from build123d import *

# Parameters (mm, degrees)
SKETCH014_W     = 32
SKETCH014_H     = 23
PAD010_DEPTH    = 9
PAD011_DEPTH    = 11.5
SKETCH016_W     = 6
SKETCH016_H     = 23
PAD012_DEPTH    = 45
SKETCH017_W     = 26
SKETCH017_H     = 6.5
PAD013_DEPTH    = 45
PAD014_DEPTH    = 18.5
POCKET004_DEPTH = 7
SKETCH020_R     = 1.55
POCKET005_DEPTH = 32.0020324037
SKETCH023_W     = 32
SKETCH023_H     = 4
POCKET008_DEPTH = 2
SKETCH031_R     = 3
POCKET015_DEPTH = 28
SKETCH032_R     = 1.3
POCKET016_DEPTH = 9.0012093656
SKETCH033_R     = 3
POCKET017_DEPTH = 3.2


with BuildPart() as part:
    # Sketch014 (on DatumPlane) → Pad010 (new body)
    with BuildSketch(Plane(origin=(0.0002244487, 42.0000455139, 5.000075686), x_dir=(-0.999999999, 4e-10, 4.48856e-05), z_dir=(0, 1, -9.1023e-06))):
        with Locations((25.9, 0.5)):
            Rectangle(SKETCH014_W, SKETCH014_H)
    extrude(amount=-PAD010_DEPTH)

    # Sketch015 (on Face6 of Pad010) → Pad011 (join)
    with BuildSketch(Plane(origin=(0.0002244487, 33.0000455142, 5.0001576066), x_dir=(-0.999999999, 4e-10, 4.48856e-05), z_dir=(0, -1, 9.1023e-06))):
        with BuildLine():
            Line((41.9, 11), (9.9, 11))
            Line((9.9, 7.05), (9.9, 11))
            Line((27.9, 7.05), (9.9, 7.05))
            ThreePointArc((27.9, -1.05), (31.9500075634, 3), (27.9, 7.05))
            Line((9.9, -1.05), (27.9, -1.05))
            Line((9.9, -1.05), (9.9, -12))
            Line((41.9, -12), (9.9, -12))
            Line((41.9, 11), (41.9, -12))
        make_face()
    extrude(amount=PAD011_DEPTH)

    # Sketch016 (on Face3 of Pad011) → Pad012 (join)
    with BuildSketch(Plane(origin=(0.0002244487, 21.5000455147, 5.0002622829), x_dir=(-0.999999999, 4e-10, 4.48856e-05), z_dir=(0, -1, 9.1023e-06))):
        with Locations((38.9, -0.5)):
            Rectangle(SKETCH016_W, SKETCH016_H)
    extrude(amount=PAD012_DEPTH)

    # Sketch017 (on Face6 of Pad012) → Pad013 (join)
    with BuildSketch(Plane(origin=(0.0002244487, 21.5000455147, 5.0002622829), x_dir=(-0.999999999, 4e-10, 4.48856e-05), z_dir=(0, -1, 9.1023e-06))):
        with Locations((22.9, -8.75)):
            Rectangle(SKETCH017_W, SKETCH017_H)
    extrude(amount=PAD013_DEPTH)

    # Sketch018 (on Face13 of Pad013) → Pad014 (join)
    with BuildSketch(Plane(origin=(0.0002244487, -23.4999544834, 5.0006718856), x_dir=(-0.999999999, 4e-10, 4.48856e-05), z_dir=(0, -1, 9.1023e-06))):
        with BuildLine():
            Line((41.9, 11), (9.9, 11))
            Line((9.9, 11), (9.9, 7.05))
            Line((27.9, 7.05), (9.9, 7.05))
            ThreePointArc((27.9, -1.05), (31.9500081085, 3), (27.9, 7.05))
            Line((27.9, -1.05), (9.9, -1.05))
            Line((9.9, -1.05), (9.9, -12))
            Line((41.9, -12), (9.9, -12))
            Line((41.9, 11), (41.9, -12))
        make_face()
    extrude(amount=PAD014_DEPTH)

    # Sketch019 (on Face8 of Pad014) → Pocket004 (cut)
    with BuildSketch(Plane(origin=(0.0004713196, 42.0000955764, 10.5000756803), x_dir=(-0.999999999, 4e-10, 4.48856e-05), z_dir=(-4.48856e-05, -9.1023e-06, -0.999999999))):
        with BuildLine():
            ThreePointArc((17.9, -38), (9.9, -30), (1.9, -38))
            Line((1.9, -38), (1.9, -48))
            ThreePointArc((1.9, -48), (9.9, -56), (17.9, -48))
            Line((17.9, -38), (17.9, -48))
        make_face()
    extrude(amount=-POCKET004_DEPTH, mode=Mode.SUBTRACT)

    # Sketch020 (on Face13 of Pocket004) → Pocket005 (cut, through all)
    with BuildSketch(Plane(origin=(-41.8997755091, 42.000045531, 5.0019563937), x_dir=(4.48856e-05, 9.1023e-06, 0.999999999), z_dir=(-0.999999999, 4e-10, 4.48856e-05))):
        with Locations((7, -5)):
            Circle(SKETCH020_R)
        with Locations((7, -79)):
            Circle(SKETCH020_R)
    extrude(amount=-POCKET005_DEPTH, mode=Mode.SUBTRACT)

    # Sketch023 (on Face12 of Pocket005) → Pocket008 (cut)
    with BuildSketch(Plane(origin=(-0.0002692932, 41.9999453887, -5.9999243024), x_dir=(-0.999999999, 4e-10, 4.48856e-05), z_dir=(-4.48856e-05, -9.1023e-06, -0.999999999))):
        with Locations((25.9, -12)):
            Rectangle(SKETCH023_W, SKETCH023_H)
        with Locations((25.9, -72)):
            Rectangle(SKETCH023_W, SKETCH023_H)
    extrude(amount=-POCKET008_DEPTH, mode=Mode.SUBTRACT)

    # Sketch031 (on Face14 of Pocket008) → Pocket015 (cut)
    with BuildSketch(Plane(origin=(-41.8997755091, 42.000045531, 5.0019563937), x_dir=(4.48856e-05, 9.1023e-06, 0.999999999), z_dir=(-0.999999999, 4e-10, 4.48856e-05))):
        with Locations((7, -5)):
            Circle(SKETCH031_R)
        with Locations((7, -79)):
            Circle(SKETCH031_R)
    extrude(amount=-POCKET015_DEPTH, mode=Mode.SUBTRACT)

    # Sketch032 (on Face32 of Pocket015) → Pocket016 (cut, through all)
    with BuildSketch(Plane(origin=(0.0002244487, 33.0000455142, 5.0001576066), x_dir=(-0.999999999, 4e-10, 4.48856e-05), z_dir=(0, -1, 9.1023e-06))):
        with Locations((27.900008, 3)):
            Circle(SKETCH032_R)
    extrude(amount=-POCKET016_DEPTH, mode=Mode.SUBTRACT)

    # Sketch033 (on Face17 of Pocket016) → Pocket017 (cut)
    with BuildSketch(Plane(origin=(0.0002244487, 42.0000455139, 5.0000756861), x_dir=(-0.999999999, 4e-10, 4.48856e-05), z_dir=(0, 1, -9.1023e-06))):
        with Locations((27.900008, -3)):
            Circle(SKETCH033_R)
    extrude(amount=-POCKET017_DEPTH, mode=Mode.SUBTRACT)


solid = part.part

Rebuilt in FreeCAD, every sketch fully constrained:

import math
import FreeCAD as App
import Part
import Sketcher

doc = App.newDocument("Part")
body = doc.addObject("PartDesign::Body", "Body")

# Sketch on XZ plane
sketch1 = doc.addObject("Sketcher::SketchObject", "Sketch")
body.addObject(sketch1)
sketch1.AttachmentSupport = (doc.XZ_Plane, [""])
sketch1.MapMode = "FlatFace"
sketch1.AttachmentOffset = App.Placement(App.Vector(0, 0, -42.000046), App.Rotation())
sketch1.addGeometry([
    Part.LineSegment(App.Vector(-10, 17, 0), App.Vector(-10, -6, 0)),
    Part.LineSegment(App.Vector(-10, -6, 0), App.Vector(-42, -6, 0)),
    Part.LineSegment(App.Vector(-42, -6, 0), App.Vector(-42, 17, 0)),
    Part.LineSegment(App.Vector(-42, 17, 0), App.Vector(-10, 17, 0)),
], False)
sketch1.addConstraint([
    Sketcher.Constraint("Coincident", 0, 2, 1, 1),
    Sketcher.Constraint("Coincident", 1, 2, 2, 1),
    Sketcher.Constraint("Coincident", 2, 2, 3, 1),
    Sketcher.Constraint("Coincident", 3, 2, 0, 1),
    Sketcher.Constraint("Perpendicular", 0, 1),
    Sketcher.Constraint("Perpendicular", 1, 2),
    Sketcher.Constraint("Perpendicular", 2, 3),
    Sketcher.Constraint("Distance", 0, 23.0),
    Sketcher.Constraint("Distance", 1, 32.0),
    Sketcher.Constraint("DistanceX", 0, 2, -1, 1, 9.900269),
    Sketcher.Constraint("DistanceY", 0, 2, -1, 1, 5.99948),
    Sketcher.Constraint("DistanceY", 1, 2, -1, 1, 5.998044),
])
pad1 = doc.addObject("PartDesign::Pad", "Pad")
body.addObject(pad1)
pad1.Profile = sketch1
pad1.Length = 9

# Sketch on XZ plane
sketch2 = doc.addObject("Sketcher::SketchObject", "Sketch001")
body.addObject(sketch2)
sketch2.AttachmentSupport = (doc.XZ_Plane, [""])
sketch2.MapMode = "FlatFace"
sketch2.AttachmentOffset = App.Placement(App.Vector(0, 0, -33.000046), App.Rotation())
sketch2.addGeometry([
    Part.LineSegment(App.Vector(-41.9, -6, 0), App.Vector(-9.9, -6, 0)),  # 0
    Part.LineSegment(App.Vector(-9.9, -6, 0), App.Vector(-9.9, -2, 0)),  # 1
    Part.LineSegment(App.Vector(-9.9, -2, 0), App.Vector(-27.9, -2, 0)),  # 2
    Part.ArcOfCircle(Part.Circle(App.Vector(-27.9, 2, 0), App.Vector(0, 0, 1), 4), math.radians(90), math.radians(270)),  # 3
    Part.LineSegment(App.Vector(-27.9, 6.1, 0), App.Vector(-9.9, 6.1, 0)),  # 4
    Part.LineSegment(App.Vector(-9.9, 6.1, 0), App.Vector(-9.9, 17, 0)),  # 5
    Part.LineSegment(App.Vector(-9.9, 17, 0), App.Vector(-41.9, 17, 0)),  # 6
    Part.LineSegment(App.Vector(-41.9, 17, 0), App.Vector(-41.9, -6, 0)),  # 7
], False)
sketch2.addConstraint([
    Sketcher.Constraint("Coincident", 0, 2, 1, 1),
    Sketcher.Constraint("Coincident", 1, 2, 2, 1),
    Sketcher.Constraint("Tangent", 2, 2, 3, 2),
    Sketcher.Constraint("Tangent", 3, 1, 4, 1),
    Sketcher.Constraint("Coincident", 4, 2, 5, 1),
    Sketcher.Constraint("Coincident", 5, 2, 6, 1),
    Sketcher.Constraint("Coincident", 6, 2, 7, 1),
    Sketcher.Constraint("Coincident", 7, 2, 0, 1),
    Sketcher.Constraint("Perpendicular", 0, 1),
    Sketcher.Constraint("Perpendicular", 1, 2),
    Sketcher.Constraint("Parallel", 2, 4),
    Sketcher.Constraint("Perpendicular", 4, 5),
    Sketcher.Constraint("Perpendicular", 5, 6),
    Sketcher.Constraint("Perpendicular", 6, 7),
    Sketcher.Constraint("Equal", 2, 4),
    Sketcher.Constraint("Radius", 3, 4.05),
    Sketcher.Constraint("Distance", 0, 32.0),
    Sketcher.Constraint("Distance", 2, 18.0),
    Sketcher.Constraint("Distance", 7, 23.0),
    Sketcher.Constraint("Distance", 1, 3.95),
    Sketcher.Constraint("DistanceY", 0, 2, -1, 1, 5.999398),
    Sketcher.Constraint("DistanceY", -1, 1, 3, 3, 2.00141),
    Sketcher.Constraint("DistanceX", 0, 2, -1, 1, 9.900269),
])
pad2 = doc.addObject("PartDesign::Pad", "Pad001")
body.addObject(pad2)
pad2.Profile = sketch2
pad2.Length = 11.5

# Sketch on XZ plane
sketch3 = doc.addObject("Sketcher::SketchObject", "Sketch002")
body.addObject(sketch3)
sketch3.AttachmentSupport = (doc.XZ_Plane, [""])
sketch3.MapMode = "FlatFace"
sketch3.AttachmentOffset = App.Placement(App.Vector(0, 0, -21.500046), App.Rotation())
sketch3.addGeometry([
    Part.LineSegment(App.Vector(-36, -6, 0), App.Vector(-36, 17, 0)),
    Part.LineSegment(App.Vector(-36, 17, 0), App.Vector(-42, 17, 0)),
    Part.LineSegment(App.Vector(-42, 17, 0), App.Vector(-42, -6, 0)),
    Part.LineSegment(App.Vector(-42, -6, 0), App.Vector(-36, -6, 0)),
], False)
sketch3.addConstraint([
    Sketcher.Constraint("Coincident", 0, 2, 1, 1),
    Sketcher.Constraint("Coincident", 1, 2, 2, 1),
    Sketcher.Constraint("Coincident", 2, 2, 3, 1),
    Sketcher.Constraint("Coincident", 3, 2, 0, 1),
    Sketcher.Constraint("Perpendicular", 0, 1),
    Sketcher.Constraint("Perpendicular", 1, 2),
    Sketcher.Constraint("Perpendicular", 2, 3),
    Sketcher.Constraint("Distance", 0, 23.0),
    Sketcher.Constraint("Distance", 1, 6.0),
    Sketcher.Constraint("DistanceX", 2, 2, -1, 1, 41.900269),
    Sketcher.Constraint("DistanceY", 0, 2, 1, 2, 0.000269),
    Sketcher.Constraint("DistanceY", -1, 1, 0, 2, 17.001874),
])
pad3 = doc.addObject("PartDesign::Pad", "Pad002")
body.addObject(pad3)
pad3.Profile = sketch3
pad3.Length = 45

# Sketch on XZ plane
sketch4 = doc.addObject("Sketcher::SketchObject", "Sketch003")
body.addObject(sketch4)
sketch4.AttachmentSupport = (doc.XZ_Plane, [""])
sketch4.MapMode = "FlatFace"
sketch4.AttachmentOffset = App.Placement(App.Vector(0, 0, -21.500046), App.Rotation())
sketch4.addGeometry([
    Part.LineSegment(App.Vector(-10, 11, 0), App.Vector(-10, 17, 0)),
    Part.LineSegment(App.Vector(-10, 17, 0), App.Vector(-36, 17, 0)),
    Part.LineSegment(App.Vector(-36, 17, 0), App.Vector(-36, 11, 0)),
    Part.LineSegment(App.Vector(-36, 11, 0), App.Vector(-10, 11, 0)),
], False)
sketch4.addConstraint([
    Sketcher.Constraint("Coincident", 0, 2, 1, 1),
    Sketcher.Constraint("Coincident", 1, 2, 2, 1),
    Sketcher.Constraint("Coincident", 2, 2, 3, 1),
    Sketcher.Constraint("Coincident", 3, 2, 0, 1),
    Sketcher.Constraint("Perpendicular", 0, 1),
    Sketcher.Constraint("Perpendicular", 1, 2),
    Sketcher.Constraint("Perpendicular", 2, 3),
    Sketcher.Constraint("Distance", 1, 26.0),
    Sketcher.Constraint("Distance", 0, 6.5),
    Sketcher.Constraint("DistanceX", 2, 2, -1, 1, 35.899529),
    Sketcher.Constraint("DistanceX", 2, 2, 1, 2, 0.000292),
    Sketcher.Constraint("DistanceY", -1, 1, 0, 2, 17.000707),
])
pad4 = doc.addObject("PartDesign::Pad", "Pad003")
body.addObject(pad4)
pad4.Profile = sketch4
pad4.Length = 45

# Sketch on XZ plane
sketch5 = doc.addObject("Sketcher::SketchObject", "Sketch004")
body.addObject(sketch5)
sketch5.AttachmentSupport = (doc.XZ_Plane, [""])
sketch5.MapMode = "FlatFace"
sketch5.AttachmentOffset = App.Placement(App.Vector(0, 0, 23.499954), App.Rotation())
sketch5.addGeometry([
    Part.LineSegment(App.Vector(-41.9, -6, 0), App.Vector(-9.9, -6, 0)),  # 0
    Part.LineSegment(App.Vector(-9.9, -6, 0), App.Vector(-9.9, -2, 0)),  # 1
    Part.LineSegment(App.Vector(-9.9, -2, 0), App.Vector(-27.9, -2, 0)),  # 2
    Part.ArcOfCircle(Part.Circle(App.Vector(-27.9, 2, 0), App.Vector(0, 0, 1), 4), math.radians(90), math.radians(270)),  # 3
    Part.LineSegment(App.Vector(-27.9, 6.1, 0), App.Vector(-9.9, 6.1, 0)),  # 4
    Part.LineSegment(App.Vector(-9.9, 6.1, 0), App.Vector(-9.9, 17, 0)),  # 5
    Part.LineSegment(App.Vector(-9.9, 17, 0), App.Vector(-41.9, 17, 0)),  # 6
    Part.LineSegment(App.Vector(-41.9, 17, 0), App.Vector(-41.9, -6, 0)),  # 7
], False)
sketch5.addConstraint([
    Sketcher.Constraint("Coincident", 0, 2, 1, 1),
    Sketcher.Constraint("Coincident", 1, 2, 2, 1),
    Sketcher.Constraint("Coincident", 2, 2, 3, 2),
    Sketcher.Constraint("Coincident", 3, 1, 4, 1),
    Sketcher.Constraint("Coincident", 4, 2, 5, 1),
    Sketcher.Constraint("Coincident", 5, 2, 6, 1),
    Sketcher.Constraint("Coincident", 6, 2, 7, 1),
    Sketcher.Constraint("Coincident", 7, 2, 0, 1),
    Sketcher.Constraint("Perpendicular", 0, 1),
    Sketcher.Constraint("Perpendicular", 1, 2),
    Sketcher.Constraint("Parallel", 2, 4),
    Sketcher.Constraint("Perpendicular", 4, 5),
    Sketcher.Constraint("Perpendicular", 5, 6),
    Sketcher.Constraint("Perpendicular", 6, 7),
    Sketcher.Constraint("Equal", 2, 4),
    Sketcher.Constraint("Equal", 0, 6),
    Sketcher.Constraint("Radius", 3, 4.05),
    Sketcher.Constraint("Distance", 0, 32.0),
    Sketcher.Constraint("Distance", 2, 18.0),
    Sketcher.Constraint("Distance", 7, 23.0),
    Sketcher.Constraint("Distance", 1, 3.95),
    Sketcher.Constraint("DistanceX", 3, 3, -1, 1, 27.899918),
    Sketcher.Constraint("DistanceX", 0, 2, -1, 1, 9.900269),
    Sketcher.Constraint("DistanceX", 1, 2, -1, 1, 9.900092),
    Sketcher.Constraint("DistanceY", -1, 1, 3, 3, 2.001924),
])
pad5 = doc.addObject("PartDesign::Pad", "Pad004")
body.addObject(pad5)
pad5.Profile = sketch5
pad5.Length = 18.5

# Sketch on XY plane
sketch6 = doc.addObject("Sketcher::SketchObject", "Sketch005")
body.addObject(sketch6)
sketch6.AttachmentSupport = (doc.XY_Plane, [""])
sketch6.MapMode = "FlatFace"
sketch6.AttachmentOffset = App.Placement(App.Vector(0, 0, 10.500076), App.Rotation())
sketch6.addGeometry([
    Part.ArcOfCircle(Part.Circle(App.Vector(-10, 4, 0), App.Vector(0, 0, 1), 8), math.radians(0), math.radians(180)),
    Part.LineSegment(App.Vector(-2, 4, 0), App.Vector(-2, -6, 0)),
    Part.ArcOfCircle(Part.Circle(App.Vector(-10, -6, 0), App.Vector(0, 0, 1), 8), math.radians(180), math.radians(360)),
    Part.LineSegment(App.Vector(-18, -6, 0), App.Vector(-18, 4, 0)),
], False)
sketch6.addConstraint([
    Sketcher.Constraint("Tangent", 0, 1, 1, 1),
    Sketcher.Constraint("Tangent", 1, 2, 2, 2),
    Sketcher.Constraint("Tangent", 2, 1, 3, 1),
    Sketcher.Constraint("Tangent", 3, 2, 0, 2),
    Sketcher.Constraint("Vertical", 1),
    Sketcher.Constraint("Vertical", 3),
    Sketcher.Constraint("Radius", 0, 8.0),
    Sketcher.Constraint("DistanceY", 1, 2, 1, 1, 10.0),
    Sketcher.Constraint("DistanceX", 0, 3, -1, 1, 9.899529),
    Sketcher.Constraint("DistanceY", -1, 1, 0, 3, 4.000096),
])
pocket1 = doc.addObject("PartDesign::Pocket", "Pocket")
body.addObject(pocket1)
pocket1.Profile = sketch6
pocket1.Length = 7
pocket1.Reversed = True

# Sketch on YZ plane
sketch7 = doc.addObject("Sketcher::SketchObject", "Sketch006")
body.addObject(sketch7)
sketch7.AttachmentSupport = (doc.YZ_Plane, [""])
sketch7.MapMode = "FlatFace"
sketch7.AttachmentOffset = App.Placement(App.Vector(0, 0, -41.899776), App.Rotation())
sketch7.addGeometry([
    Part.Circle(App.Vector(37, 12, 0), App.Vector(0, 0, 1), 1.6),
    Part.Circle(App.Vector(-37, 12, 0), App.Vector(0, 0, 1), 1.6),
], False)
sketch7.addConstraint([
    Sketcher.Constraint("Equal", 0, 1),
    Sketcher.Constraint("Diameter", 0, 3.1),
    Sketcher.Constraint("DistanceX", 1, 3, 0, 3, 74.0),
    Sketcher.Constraint("DistanceY", -1, 1, 0, 3, 12.002002),
    Sketcher.Constraint("DistanceX", -1, 1, 0, 3, 37.000109),
    Sketcher.Constraint("DistanceY", -1, 1, 1, 3, 12.002675),
])
pocket2 = doc.addObject("PartDesign::Pocket", "Pocket001")
body.addObject(pocket2)
pocket2.Profile = sketch7
pocket2.Type = "ThroughAll"
pocket2.Reversed = True

# Sketch on XY plane
sketch8 = doc.addObject("Sketcher::SketchObject", "Sketch007")
body.addObject(sketch8)
sketch8.AttachmentSupport = (doc.XY_Plane, [""])
sketch8.MapMode = "FlatFace"
sketch8.AttachmentOffset = App.Placement(App.Vector(0, 0, -5.999924), App.Rotation())
sketch8.addGeometry([
    Part.LineSegment(App.Vector(-9.9, 32, 0), App.Vector(-9.9, 28, 0)),  # 0
    Part.LineSegment(App.Vector(-9.9, 28, 0), App.Vector(-41.9, 28, 0)),  # 1
    Part.LineSegment(App.Vector(-41.9, 28, 0), App.Vector(-41.9, 32, 0)),  # 2
    Part.LineSegment(App.Vector(-41.9, 32, 0), App.Vector(-9.9, 32, 0)),  # 3
    Part.LineSegment(App.Vector(-9.9, -28, 0), App.Vector(-9.9, -32, 0)),  # 4
    Part.LineSegment(App.Vector(-9.9, -32, 0), App.Vector(-41.9, -32, 0)),  # 5
    Part.LineSegment(App.Vector(-41.9, -32, 0), App.Vector(-41.9, -28, 0)),  # 6
    Part.LineSegment(App.Vector(-41.9, -28, 0), App.Vector(-9.9, -28, 0)),  # 7
], False)
sketch8.addConstraint([
    Sketcher.Constraint("Coincident", 0, 2, 1, 1),
    Sketcher.Constraint("Coincident", 1, 2, 2, 1),
    Sketcher.Constraint("Coincident", 2, 2, 3, 1),
    Sketcher.Constraint("Coincident", 3, 2, 0, 1),
    Sketcher.Constraint("Coincident", 4, 2, 5, 1),
    Sketcher.Constraint("Coincident", 5, 2, 6, 1),
    Sketcher.Constraint("Coincident", 6, 2, 7, 1),
    Sketcher.Constraint("Coincident", 7, 2, 4, 1),
    Sketcher.Constraint("Vertical", 0),
    Sketcher.Constraint("Horizontal", 1),
    Sketcher.Constraint("Vertical", 2),
    Sketcher.Constraint("Horizontal", 3),
    Sketcher.Constraint("Vertical", 4),
    Sketcher.Constraint("Horizontal", 5),
    Sketcher.Constraint("Vertical", 6),
    Sketcher.Constraint("Horizontal", 7),
    Sketcher.Constraint("Vertical", 3, 2, 4, 2),
    Sketcher.Constraint("Vertical", 2, 2, 5, 2),
    Sketcher.Constraint("Equal", 2, 4),
    Sketcher.Constraint("DistanceX", 1, 2, 1, 1, 32.0),
    Sketcher.Constraint("DistanceY", 0, 2, 0, 1, 4.0),
    Sketcher.Constraint("DistanceY", 4, 2, 0, 2, 60.0),
    Sketcher.Constraint("DistanceX", 0, 2, -1, 1, 9.900269),
    Sketcher.Constraint("DistanceY", -1, 1, 0, 2, 27.999945),
])
pocket3 = doc.addObject("PartDesign::Pocket", "Pocket002")
body.addObject(pocket3)
pocket3.Profile = sketch8
pocket3.Length = 2
pocket3.Reversed = True

# Sketch on YZ plane
sketch9 = doc.addObject("Sketcher::SketchObject", "Sketch008")
body.addObject(sketch9)
sketch9.AttachmentSupport = (doc.YZ_Plane, [""])
sketch9.MapMode = "FlatFace"
sketch9.AttachmentOffset = App.Placement(App.Vector(0, 0, -41.899776), App.Rotation())
sketch9.addGeometry([
    Part.Circle(App.Vector(37, 12, 0), App.Vector(0, 0, 1), 3),
    Part.Circle(App.Vector(-37, 12, 0), App.Vector(0, 0, 1), 3),
], False)
sketch9.addConstraint([
    Sketcher.Constraint("Equal", 0, 1),
    Sketcher.Constraint("Diameter", 0, 6.0),
    Sketcher.Constraint("DistanceX", 1, 3, 0, 3, 74.0),
    Sketcher.Constraint("DistanceY", -1, 1, 0, 3, 12.002002),
    Sketcher.Constraint("DistanceX", -1, 1, 0, 3, 37.000109),
    Sketcher.Constraint("DistanceY", -1, 1, 1, 3, 12.002675),
])
pocket4 = doc.addObject("PartDesign::Pocket", "Pocket003")
body.addObject(pocket4)
pocket4.Profile = sketch9
pocket4.Length = 28
pocket4.Reversed = True

# Sketch on XZ plane
sketch10 = doc.addObject("Sketcher::SketchObject", "Sketch009")
body.addObject(sketch10)
sketch10.AttachmentSupport = (doc.XZ_Plane, [""])
sketch10.MapMode = "FlatFace"
sketch10.AttachmentOffset = App.Placement(App.Vector(0, 0, -33.000046), App.Rotation())
sketch10.addGeometry(Part.Circle(App.Vector(-27.9, 2, 0), App.Vector(0, 0, 1), 1.3), False)
sketch10.addConstraint([
    Sketcher.Constraint("Diameter", 0, 2.6),
    Sketcher.Constraint("DistanceX", 0, 3, -1, 1, 27.899918),
    Sketcher.Constraint("DistanceY", -1, 1, 0, 3, 2.00141),
])
pocket5 = doc.addObject("PartDesign::Pocket", "Pocket004")
body.addObject(pocket5)
pocket5.Profile = sketch10
pocket5.Type = "ThroughAll"

# Sketch on XZ plane
sketch11 = doc.addObject("Sketcher::SketchObject", "Sketch010")
body.addObject(sketch11)
sketch11.AttachmentSupport = (doc.XZ_Plane, [""])
sketch11.MapMode = "FlatFace"
sketch11.AttachmentOffset = App.Placement(App.Vector(0, 0, -42.000046), App.Rotation())
sketch11.addGeometry(Part.Circle(App.Vector(-27.9, 2, 0), App.Vector(0, 0, 1), 3), False)
sketch11.addConstraint([
    Sketcher.Constraint("Diameter", 0, 6.0),
    Sketcher.Constraint("DistanceX", 0, 3, -1, 1, 27.899918),
    Sketcher.Constraint("DistanceY", -1, 1, 0, 3, 2.001328),
])
pocket6 = doc.addObject("PartDesign::Pocket", "Pocket005")
body.addObject(pocket6)
pocket6.Profile = sketch11
pocket6.Length = 3.2
pocket6.Reversed = True

doc.recompute()
